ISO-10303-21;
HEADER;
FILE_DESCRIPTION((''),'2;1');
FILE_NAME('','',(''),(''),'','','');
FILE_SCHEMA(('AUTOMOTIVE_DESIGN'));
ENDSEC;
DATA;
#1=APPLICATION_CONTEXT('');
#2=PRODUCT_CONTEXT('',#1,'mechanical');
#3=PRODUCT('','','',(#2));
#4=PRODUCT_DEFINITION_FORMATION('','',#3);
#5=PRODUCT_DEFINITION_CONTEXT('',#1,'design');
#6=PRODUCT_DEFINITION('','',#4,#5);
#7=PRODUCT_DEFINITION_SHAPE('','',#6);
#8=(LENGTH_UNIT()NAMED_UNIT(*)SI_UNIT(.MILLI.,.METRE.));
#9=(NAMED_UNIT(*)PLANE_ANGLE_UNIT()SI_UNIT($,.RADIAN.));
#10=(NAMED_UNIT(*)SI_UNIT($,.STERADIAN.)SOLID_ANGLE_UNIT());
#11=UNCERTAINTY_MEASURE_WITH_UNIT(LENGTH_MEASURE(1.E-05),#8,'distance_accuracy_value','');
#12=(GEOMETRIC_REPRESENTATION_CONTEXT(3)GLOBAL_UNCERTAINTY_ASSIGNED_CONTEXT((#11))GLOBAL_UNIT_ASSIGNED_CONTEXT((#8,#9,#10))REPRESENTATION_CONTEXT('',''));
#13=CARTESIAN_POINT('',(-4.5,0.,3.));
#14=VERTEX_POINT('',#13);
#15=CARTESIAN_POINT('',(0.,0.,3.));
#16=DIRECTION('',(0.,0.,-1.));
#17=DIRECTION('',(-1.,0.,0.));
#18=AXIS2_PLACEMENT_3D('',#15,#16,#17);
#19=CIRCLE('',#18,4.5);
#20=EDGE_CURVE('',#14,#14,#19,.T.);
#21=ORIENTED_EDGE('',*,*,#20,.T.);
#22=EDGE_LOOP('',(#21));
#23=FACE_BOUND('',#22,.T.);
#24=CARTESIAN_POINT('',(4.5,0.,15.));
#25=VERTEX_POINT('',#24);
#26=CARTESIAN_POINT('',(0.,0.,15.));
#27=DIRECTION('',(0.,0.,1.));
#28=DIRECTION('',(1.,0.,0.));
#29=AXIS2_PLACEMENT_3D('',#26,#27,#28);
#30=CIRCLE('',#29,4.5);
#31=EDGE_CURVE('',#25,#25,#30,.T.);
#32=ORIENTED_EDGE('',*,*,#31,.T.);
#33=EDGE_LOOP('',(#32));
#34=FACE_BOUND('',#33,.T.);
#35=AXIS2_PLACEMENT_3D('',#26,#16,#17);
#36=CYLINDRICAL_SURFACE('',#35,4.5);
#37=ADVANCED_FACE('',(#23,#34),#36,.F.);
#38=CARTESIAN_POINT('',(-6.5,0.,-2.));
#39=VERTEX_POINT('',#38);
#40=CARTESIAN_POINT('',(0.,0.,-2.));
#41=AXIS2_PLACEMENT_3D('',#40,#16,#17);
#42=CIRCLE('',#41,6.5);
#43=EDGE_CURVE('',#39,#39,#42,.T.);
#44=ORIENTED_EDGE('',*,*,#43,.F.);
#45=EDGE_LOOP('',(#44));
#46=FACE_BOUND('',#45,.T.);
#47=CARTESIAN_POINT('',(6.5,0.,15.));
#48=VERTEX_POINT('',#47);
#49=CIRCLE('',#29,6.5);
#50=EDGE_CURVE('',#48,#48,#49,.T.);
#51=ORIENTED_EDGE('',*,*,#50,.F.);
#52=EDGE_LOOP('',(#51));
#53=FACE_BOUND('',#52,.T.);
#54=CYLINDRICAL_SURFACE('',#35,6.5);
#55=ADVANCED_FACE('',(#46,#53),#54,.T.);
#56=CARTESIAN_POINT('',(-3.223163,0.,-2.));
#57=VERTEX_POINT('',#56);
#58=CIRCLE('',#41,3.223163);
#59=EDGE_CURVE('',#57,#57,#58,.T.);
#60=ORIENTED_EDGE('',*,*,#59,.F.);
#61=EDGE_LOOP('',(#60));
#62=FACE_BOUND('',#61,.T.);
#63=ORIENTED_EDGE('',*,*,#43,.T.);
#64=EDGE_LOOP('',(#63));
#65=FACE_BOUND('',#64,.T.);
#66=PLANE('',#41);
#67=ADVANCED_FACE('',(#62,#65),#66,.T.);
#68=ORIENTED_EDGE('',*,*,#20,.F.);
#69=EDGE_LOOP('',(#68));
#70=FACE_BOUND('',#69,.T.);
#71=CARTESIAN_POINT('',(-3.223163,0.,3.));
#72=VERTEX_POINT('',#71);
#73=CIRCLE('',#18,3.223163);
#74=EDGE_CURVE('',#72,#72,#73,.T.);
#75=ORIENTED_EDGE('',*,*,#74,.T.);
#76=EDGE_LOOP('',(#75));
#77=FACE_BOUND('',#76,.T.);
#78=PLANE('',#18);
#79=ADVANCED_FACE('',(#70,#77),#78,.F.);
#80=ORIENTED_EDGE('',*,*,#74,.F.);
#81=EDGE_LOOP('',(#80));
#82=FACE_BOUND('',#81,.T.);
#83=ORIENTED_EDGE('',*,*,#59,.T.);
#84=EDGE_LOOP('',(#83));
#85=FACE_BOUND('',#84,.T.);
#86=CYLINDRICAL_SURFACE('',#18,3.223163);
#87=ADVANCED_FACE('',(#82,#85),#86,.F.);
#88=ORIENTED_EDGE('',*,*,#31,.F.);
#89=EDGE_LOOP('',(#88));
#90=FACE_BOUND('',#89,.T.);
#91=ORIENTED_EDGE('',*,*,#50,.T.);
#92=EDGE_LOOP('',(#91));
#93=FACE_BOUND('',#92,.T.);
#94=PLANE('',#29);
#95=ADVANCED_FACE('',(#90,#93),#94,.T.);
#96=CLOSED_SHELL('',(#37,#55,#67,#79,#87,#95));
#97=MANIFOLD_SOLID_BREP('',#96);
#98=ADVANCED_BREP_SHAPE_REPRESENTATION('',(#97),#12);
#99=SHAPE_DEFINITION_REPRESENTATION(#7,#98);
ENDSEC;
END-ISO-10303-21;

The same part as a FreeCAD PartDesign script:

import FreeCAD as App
import Part
import Sketcher
from FreeCAD import Vector
Q = App.Units.Quantity

doc = App.newDocument("Part")
params = doc.addObject("Spreadsheet::Sheet", "Params")
for row, (alias, value) in enumerate([
    ("sketch1_diameter", "13 mm"),
    ("sketch1_diameter2", "9 mm"),
    ("pad1_length", "15 mm"),
    ("sketch2_diameter", "13 mm"),
    ("pad2_length", "2 mm"),
    ("pad2_length2", "3 mm"),
], start=1):
    params.set(f"A{row}", alias)
    params.set(f"B{row}", "=" + value)
    params.setAlias(f"B{row}", alias)

body = doc.addObject("PartDesign::Body", "Body")

# Sketch on XY plane
sketch1 = body.newObject("Sketcher::SketchObject", "Sketch")
sketch1.AttachmentSupport = (doc.getObject("XY_Plane"), [""])
sketch1.MapMode = "FlatFace"
sketch1.addGeometry([
    Part.Circle(Vector(0, 0, 0), Vector(0, 0, 1), 6.5),
    Part.Circle(Vector(0, 0, 0), Vector(0, 0, 1), 4.5),
], False)
sketch1.addConstraint([
    Sketcher.Constraint("Coincident", 0, 3, -1, 1),
    Sketcher.Constraint("Coincident", 1, 3, -1, 1),
    Sketcher.Constraint("Diameter", 0, Q("13 mm")),
    Sketcher.Constraint("Diameter", 1, Q("9 mm")),
])
sketch1.setExpression("Constraints[2]", "Params.sketch1_diameter")
sketch1.setExpression("Constraints[3]", "Params.sketch1_diameter2")
pad1 = body.newObject("PartDesign::Pad", "Pad")
pad1.Profile = sketch1
pad1.setExpression("Length", "Params.pad1_length")

# Sketch on XY plane
sketch2 = body.newObject("Sketcher::SketchObject", "Sketch001")
sketch2.AttachmentSupport = (doc.getObject("XY_Plane"), [""])
sketch2.MapMode = "FlatFace"
sketch2.addGeometry([
    Part.Circle(Vector(0, 0, 0), Vector(0, 0, 1), 6.5),
    Part.Circle(Vector(0, 0, 0), Vector(0, 0, 1), 3.2),
], False)
sketch2.addConstraint([
    Sketcher.Constraint("Coincident", 0, 3, -1, 1),
    Sketcher.Constraint("Coincident", 1, 3, -1, 1),
    Sketcher.Constraint("Diameter", 0, Q("13 mm")),
    Sketcher.Constraint("Diameter", 1, Q("6.446327 mm")),
])
sketch2.setExpression("Constraints[2]", "Params.sketch2_diameter")
pad2 = body.newObject("PartDesign::Pad", "Pad001")
pad2.Profile = sketch2
pad2.Type = "TwoLengths"
pad2.setExpression("Length", "Params.pad2_length")
pad2.setExpression("Length2", "Params.pad2_length2")
pad2.Reversed = True

doc.recompute()
